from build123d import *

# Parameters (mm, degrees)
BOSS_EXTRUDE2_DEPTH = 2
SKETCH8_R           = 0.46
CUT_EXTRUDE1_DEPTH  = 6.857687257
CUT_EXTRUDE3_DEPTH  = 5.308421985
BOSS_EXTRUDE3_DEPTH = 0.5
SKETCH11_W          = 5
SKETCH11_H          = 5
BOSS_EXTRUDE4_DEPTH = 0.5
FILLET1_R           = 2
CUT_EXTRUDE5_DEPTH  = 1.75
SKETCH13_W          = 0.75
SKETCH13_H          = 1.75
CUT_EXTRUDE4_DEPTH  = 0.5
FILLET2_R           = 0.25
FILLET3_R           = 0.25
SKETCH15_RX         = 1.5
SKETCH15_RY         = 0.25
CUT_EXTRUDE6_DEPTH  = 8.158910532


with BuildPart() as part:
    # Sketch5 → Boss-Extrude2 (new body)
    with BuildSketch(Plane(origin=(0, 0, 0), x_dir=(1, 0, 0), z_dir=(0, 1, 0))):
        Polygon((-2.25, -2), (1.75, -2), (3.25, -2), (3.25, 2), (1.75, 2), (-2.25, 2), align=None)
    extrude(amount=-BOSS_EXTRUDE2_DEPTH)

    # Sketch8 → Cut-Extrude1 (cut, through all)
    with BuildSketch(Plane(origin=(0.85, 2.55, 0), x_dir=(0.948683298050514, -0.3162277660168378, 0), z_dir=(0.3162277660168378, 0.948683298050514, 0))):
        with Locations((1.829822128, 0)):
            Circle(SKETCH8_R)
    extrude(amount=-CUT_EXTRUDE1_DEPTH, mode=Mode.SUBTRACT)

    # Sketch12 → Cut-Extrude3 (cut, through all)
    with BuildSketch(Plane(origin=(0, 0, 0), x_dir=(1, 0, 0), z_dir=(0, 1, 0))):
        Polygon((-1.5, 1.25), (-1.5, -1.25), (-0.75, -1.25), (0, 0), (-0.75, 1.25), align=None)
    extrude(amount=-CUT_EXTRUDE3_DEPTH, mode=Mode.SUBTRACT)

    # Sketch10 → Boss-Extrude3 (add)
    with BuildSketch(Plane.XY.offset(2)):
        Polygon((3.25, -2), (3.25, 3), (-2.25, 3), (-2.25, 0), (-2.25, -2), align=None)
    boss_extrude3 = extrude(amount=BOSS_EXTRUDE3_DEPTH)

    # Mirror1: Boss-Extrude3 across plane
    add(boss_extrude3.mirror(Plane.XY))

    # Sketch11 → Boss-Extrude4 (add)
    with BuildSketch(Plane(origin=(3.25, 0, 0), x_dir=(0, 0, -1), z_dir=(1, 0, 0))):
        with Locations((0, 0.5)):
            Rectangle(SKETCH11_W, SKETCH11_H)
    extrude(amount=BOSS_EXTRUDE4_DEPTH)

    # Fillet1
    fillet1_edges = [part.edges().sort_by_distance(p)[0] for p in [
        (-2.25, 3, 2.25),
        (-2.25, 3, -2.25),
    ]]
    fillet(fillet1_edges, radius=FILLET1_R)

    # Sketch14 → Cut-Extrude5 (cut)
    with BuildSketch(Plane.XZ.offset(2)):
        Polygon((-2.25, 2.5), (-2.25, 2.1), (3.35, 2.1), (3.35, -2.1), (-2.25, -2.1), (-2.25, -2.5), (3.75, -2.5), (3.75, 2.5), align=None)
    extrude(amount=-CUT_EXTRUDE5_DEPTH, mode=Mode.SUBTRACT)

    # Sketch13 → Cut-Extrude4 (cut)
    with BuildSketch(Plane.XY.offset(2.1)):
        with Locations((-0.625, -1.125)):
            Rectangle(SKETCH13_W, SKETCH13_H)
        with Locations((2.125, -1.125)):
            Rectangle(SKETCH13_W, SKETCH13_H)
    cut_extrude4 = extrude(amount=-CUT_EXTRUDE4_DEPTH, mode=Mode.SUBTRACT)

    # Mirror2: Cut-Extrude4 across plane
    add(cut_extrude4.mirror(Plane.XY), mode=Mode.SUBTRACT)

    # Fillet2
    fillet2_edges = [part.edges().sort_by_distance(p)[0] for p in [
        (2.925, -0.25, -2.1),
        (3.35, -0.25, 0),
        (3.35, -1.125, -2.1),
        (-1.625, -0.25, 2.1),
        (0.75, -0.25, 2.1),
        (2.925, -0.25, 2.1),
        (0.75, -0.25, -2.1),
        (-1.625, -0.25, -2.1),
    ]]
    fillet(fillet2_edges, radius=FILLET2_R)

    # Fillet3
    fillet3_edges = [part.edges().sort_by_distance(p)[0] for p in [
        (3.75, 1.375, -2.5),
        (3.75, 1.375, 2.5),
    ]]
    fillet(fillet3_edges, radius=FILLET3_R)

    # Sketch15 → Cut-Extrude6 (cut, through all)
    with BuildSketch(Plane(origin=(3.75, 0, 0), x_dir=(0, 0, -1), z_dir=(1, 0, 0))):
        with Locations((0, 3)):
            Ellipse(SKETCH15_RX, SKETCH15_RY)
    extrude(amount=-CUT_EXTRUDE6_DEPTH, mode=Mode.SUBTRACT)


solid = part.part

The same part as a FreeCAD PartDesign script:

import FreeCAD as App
import Part
import Sketcher


def edges_at(feature, points):
    """Names of the edges that pass closest to the given points."""
    edges = feature.Shape.Edges
    near = lambda p: min(range(len(edges)), key=lambda i: edges[i].distToShape(Part.Vertex(*p))[0])
    return sorted({f"Edge{near(p) + 1}" for p in points})


def add_polygon(sketch, points):
    """Adds a closed chain of lines whose ends are joined by coincident constraints."""
    first, n = sketch.GeometryCount, len(points)
    for a, b in zip(points, points[1:] + points[:1]):
        sketch.addGeometry(Part.LineSegment(App.Vector(*a, 0), App.Vector(*b, 0)), False)
    for i in range(n):
        sketch.addConstraint(Sketcher.Constraint("Coincident", first + i, 2, first + (i + 1) % n, 1))

doc = App.newDocument("Part")
params = doc.addObject("Spreadsheet::Sheet", "Params")
for row, (alias, value) in enumerate([
    ("sketch1_height", "4 mm"),
    ("sketch1_width", "5.5 mm"),
    ("pad1_length", "2 mm"),
    ("sketch2_diameter", "0.92 mm"),
    ("sketch3_height", "2.5 mm"),
    ("sketch3_width", "0.75 mm"),
    ("sketch4_height", "5 mm"),
    ("sketch4_width", "5.5 mm"),
    ("pad2_length", "0.5 mm"),
    ("sketch5_width", "5 mm"),
    ("pad3_length", "0.5 mm"),
    ("fillet_radius", "2 mm"),
    ("sketch6_width", "6 mm"),
    ("sketch6_height", "5 mm"),
    ("sketch6_width2", "5.6 mm"),
    ("sketch6_height2", "0.4 mm"),
    ("pocket3_length", "1.75 mm"),
    ("sketch7_width", "0.75 mm"),
    ("sketch7_height", "1.75 mm"),
    ("pocket4_length", "0.5 mm"),
    ("fillet2_radius", "0.25 mm"),
    ("fillet3_radius", "0.25 mm"),
], start=1):
    params.set(f"A{row}", alias)
    params.set(f"B{row}", "=" + value)
    params.setAlias(f"B{row}", alias)

body = doc.addObject("PartDesign::Body", "Body")

# Sketch on XZ plane
sketch1 = body.newObject("Sketcher::SketchObject", "Sketch")
sketch1.AttachmentSupport = (doc.getObject("XZ_Plane"), [""])
sketch1.MapMode = "FlatFace"
add_polygon(sketch1, [(-2.2, 2), (3.2, 2), (3.2, -2), (-2.2, -2)])  # lines 0-3
sketch1.addConstraint([
    Sketcher.Constraint("Horizontal", 0),
    Sketcher.Constraint("Vertical", 1),
    Sketcher.Constraint("Horizontal", 2),
    Sketcher.Constraint("Vertical", 3),
    Sketcher.Constraint("DistanceY", 1, 2, 1, 1, 4.0),
    Sketcher.Constraint("DistanceX", 0, 1, 0, 2, 5.5),
    Sketcher.Constraint("DistanceY", -1, 1, 0, 2, 2.0),
    Sketcher.Constraint("DistanceX", -1, 1, 0, 2, 3.25),
])
sketch1.setExpression("Constraints[8]", "Params.sketch1_height")
sketch1.setExpression("Constraints[9]", "Params.sketch1_width")
pad1 = body.newObject("PartDesign::Pad", "Pad")
pad1.Profile = sketch1
pad1.setExpression("Length", "Params.pad1_length")

# Sketch on an angled plane
sketch2 = body.newObject("Sketcher::SketchObject", "Sketch001")
sketch2.Placement = App.Placement(App.Vector(0.85, 2.55, 0), App.Rotation(App.Vector(0.948683298, -0.316227766, 0), App.Vector(0, 0, -1), App.Vector(0.316227766, 0.948683298, 0), "ZXY"))
sketch2.addGeometry(Part.Circle(App.Vector(1.83, 0, 0), App.Vector(0, 0, 1), 0.46), False)
sketch2.addConstraint([
    Sketcher.Constraint("PointOnObject", 0, 3, -1),
    Sketcher.Constraint("Diameter", 0, 0.92),
    Sketcher.Constraint("DistanceX", -1, 1, 0, 3, 1.829822),
])
sketch2.setExpression("Constraints[1]", "Params.sketch2_diameter")
pocket1 = body.newObject("PartDesign::Pocket", "Pocket")
pocket1.Profile = sketch2
pocket1.Type = "ThroughAll"

# Sketch on XZ plane
sketch3 = body.newObject("Sketcher::SketchObject", "Sketch002")
sketch3.AttachmentSupport = (doc.getObject("XZ_Plane"), [""])
sketch3.MapMode = "FlatFace"
add_polygon(sketch3, [(-1.5, -1.2), (-1.5, 1.2), (-0.8, 1.2), (0, 0), (-0.8, -1.2)])  # lines 0-4
sketch3.addConstraint([
    Sketcher.Constraint("Vertical", 0),
    Sketcher.Constraint("Horizontal", 1),
    Sketcher.Constraint("Horizontal", 4),
    Sketcher.Constraint("Coincident", 2, 2, -1, 1),
    Sketcher.Constraint("Symmetric", 1, 2, 3, 2, -1),
    Sketcher.Constraint("DistanceY", 0, 1, 0, 2, 2.5),
    Sketcher.Constraint("DistanceX", 1, 1, 1, 2, 0.75),
    Sketcher.Constraint("DistanceX", 0, 2, -1, 1, 1.5),
])
sketch3.setExpression("Constraints[10]", "Params.sketch3_height")
sketch3.setExpression("Constraints[11]", "Params.sketch3_width")
pocket2 = body.newObject("PartDesign::Pocket", "Pocket001")
pocket2.Profile = sketch3
pocket2.Type = "ThroughAll"
pocket2.Reversed = True

# Sketch on XY plane
sketch4 = body.newObject("Sketcher::SketchObject", "Sketch003")
sketch4.AttachmentSupport = (doc.getObject("XY_Plane"), [""])
sketch4.MapMode = "FlatFace"
sketch4.AttachmentOffset = App.Placement(App.Vector(0, 0, 2), App.Rotation())
add_polygon(sketch4, [(3, -2), (3, 3), (-2, 3), (-2, -2)])  # lines 0-3
sketch4.addConstraint([
    Sketcher.Constraint("Vertical", 0),
    Sketcher.Constraint("Horizontal", 1),
    Sketcher.Constraint("Vertical", 2),
    Sketcher.Constraint("Horizontal", 3),
    Sketcher.Constraint("DistanceY", 0, 1, 0, 2, 5.0),
    Sketcher.Constraint("DistanceX", 1, 2, 1, 1, 5.5),
    Sketcher.Constraint("DistanceY", -1, 1, 0, 2, 3.0),
    Sketcher.Constraint("DistanceX", -1, 1, 0, 2, 3.25),
])
sketch4.setExpression("Constraints[8]", "Params.sketch4_height")
sketch4.setExpression("Constraints[9]", "Params.sketch4_width")
pad2 = body.newObject("PartDesign::Pad", "Pad001")
pad2.Profile = sketch4
pad2.setExpression("Length", "Params.pad2_length")
doc.recompute()

mirrored = body.newObject("PartDesign::Mirrored", "Mirrored")
mirrored.Originals = [pad2]
mirrored.MirrorPlane = (doc.getObject("XY_Plane"), [""])
body.Tip = mirrored

# Sketch on YZ plane
sketch5 = body.newObject("Sketcher::SketchObject", "Sketch004")
sketch5.AttachmentSupport = (doc.getObject("YZ_Plane"), [""])
sketch5.MapMode = "FlatFace"
sketch5.AttachmentOffset = App.Placement(App.Vector(0, 0, 3.25), App.Rotation())
add_polygon(sketch5, [(3, 2), (-2, 2), (-2, -2), (3, -2)])  # lines 0-3
sketch5.addConstraint([
    Sketcher.Constraint("Horizontal", 0),
    Sketcher.Constraint("Vertical", 1),
    Sketcher.Constraint("Horizontal", 2),
    Sketcher.Constraint("Vertical", 3),
    Sketcher.Constraint("Equal", 2, 1),
    Sketcher.Constraint("DistanceX", 0, 2, 0, 1, 5.0),
    Sketcher.Constraint("DistanceX", 0, 2, -1, 1, 2.0),
    Sketcher.Constraint("DistanceY", -1, 1, 0, 2, 2.5),
])
sketch5.setExpression("Constraints[9]", "Params.sketch5_width")
pad3 = body.newObject("PartDesign::Pad", "Pad002")
pad3.Profile = sketch5
pad3.setExpression("Length", "Params.pad3_length")
doc.recompute()

fillet = body.newObject("PartDesign::Fillet", "Fillet")
fillet.Base = (pad3, edges_at(pad3, [(-2.25, 3, 2.25), (-2.25, 3, -2.25)]))
fillet.setExpression("Radius", "Params.fillet_radius")

# Sketch on XZ plane
sketch6 = body.newObject("Sketcher::SketchObject", "Sketch005")
sketch6.AttachmentSupport = (doc.getObject("XZ_Plane"), [""])
sketch6.MapMode = "FlatFace"
sketch6.AttachmentOffset = App.Placement(App.Vector(0, 0, 2), App.Rotation())
add_polygon(sketch6, [(-2.25, 2.5), (-2.25, 2.1), (3.35, 2.1), (3.35, -2.1), (-2.25, -2.1), (-2.25, -2.5), (3.75, -2.5), (3.75, 2.5)])  # lines 0-7
sketch6.addConstraint([
    Sketcher.Constraint("Vertical", 0),
    Sketcher.Constraint("Horizontal", 1),
    Sketcher.Constraint("Vertical", 2),
    Sketcher.Constraint("Horizontal", 3),
    Sketcher.Constraint("Vertical", 4),
    Sketcher.Constraint("Horizontal", 5),
    Sketcher.Constraint("Vertical", 6),
    Sketcher.Constraint("Horizontal", 7),
    Sketcher.Constraint("Symmetric", 0, 2, 3, 2, -1),
    Sketcher.Constraint("Equal", 0, 4),
    Sketcher.Constraint("DistanceX", 5, 1, 5, 2, 6.0),
    Sketcher.Constraint("DistanceY", 6, 1, 6, 2, 5.0),
    Sketcher.Constraint("DistanceX", 1, 1, 1, 2, 5.6),
    Sketcher.Constraint("DistanceY", 0, 2, 0, 1, 0.4),
    Sketcher.Constraint("DistanceX", 0, 2, -1, 1, 2.25),
])
sketch6.setExpression("Constraints[18]", "Params.sketch6_width")
sketch6.setExpression("Constraints[19]", "Params.sketch6_height")
sketch6.setExpression("Constraints[20]", "Params.sketch6_width2")
sketch6.setExpression("Constraints[21]", "Params.sketch6_height2")
pocket3 = body.newObject("PartDesign::Pocket", "Pocket002")
pocket3.Profile = sketch6
pocket3.setExpression("Length", "Params.pocket3_length")

# Sketch on XY plane
sketch7 = body.newObject("Sketcher::SketchObject", "Sketch006")
sketch7.AttachmentSupport = (doc.getObject("XY_Plane"), [""])
sketch7.MapMode = "FlatFace"
sketch7.AttachmentOffset = App.Placement(App.Vector(0, 0, 2.1), App.Rotation())
add_polygon(sketch7, [(-1, -0.2), (-1, -2), (-0.2, -2), (-0.2, -0.2)])  # lines 0-3
add_polygon(sketch7, [(1.8, -0.2), (1.8, -2), (2.5, -2), (2.5, -0.2)])  # lines 4-7
sketch7.addConstraint([
    Sketcher.Constraint("Vertical", 0),
    Sketcher.Constraint("Horizontal", 1),
    Sketcher.Constraint("Vertical", 2),
    Sketcher.Constraint("Horizontal", 3),
    Sketcher.Constraint("Vertical", 4),
    Sketcher.Constraint("Horizontal", 5),
    Sketcher.Constraint("Vertical", 6),
    Sketcher.Constraint("Horizontal", 7),
    Sketcher.Constraint("Horizontal", 1, 2, 4, 2),
    Sketcher.Constraint("Horizontal", 3, 2, 6, 2),
    Sketcher.Constraint("Equal", 3, 5),
    Sketcher.Constraint("DistanceX", 0, 2, -1, 1, 1.0),
    Sketcher.Constraint("DistanceY", 0, 2, -1, 1, 2.0),
    Sketcher.Constraint("DistanceX", 1, 2, 4, 2, 2.0),
    Sketcher.Constraint("DistanceX", 1, 1, 1, 2, 0.75),
    Sketcher.Constraint("DistanceY", 0, 2, 0, 1, 1.75),
])
sketch7.setExpression("Constraints[22]", "Params.sketch7_width")
sketch7.setExpression("Constraints[23]", "Params.sketch7_height")
pocket4 = body.newObject("PartDesign::Pocket", "Pocket003")
pocket4.Profile = sketch7
pocket4.setExpression("Length", "Params.pocket4_length")
doc.recompute()

mirrored2 = body.newObject("PartDesign::Mirrored", "Mirrored001")
mirrored2.Originals = [pocket4]
mirrored2.MirrorPlane = (doc.getObject("XY_Plane"), [""])
body.Tip = mirrored2
doc.recompute()

fillet2 = body.newObject("PartDesign::Fillet", "Fillet001")
fillet2.Base = (mirrored2, edges_at(mirrored2, [
    (2.925, -0.25, -2.1),
    (3.35, -0.25, 0),
    (3.35, -1.125, -2.1),
    (-1.625, -0.25, 2.1),
    (0.75, -0.25, 2.1),
    (2.925, -0.25, 2.1),
    (0.75, -0.25, -2.1),
    (-1.625, -0.25, -2.1),
]))
fillet2.setExpression("Radius", "Params.fillet2_radius")
doc.recompute()

fillet3 = body.newObject("PartDesign::Fillet", "Fillet002")
fillet3.Base = (fillet2, edges_at(fillet2, [(3.75, 1.375, -2.5), (3.75, 1.375, 2.5)]))
fillet3.setExpression("Radius", "Params.fillet3_radius")

# Sketch on YZ plane
sketch8 = body.newObject("Sketcher::SketchObject", "Sketch007")
sketch8.AttachmentSupport = (doc.getObject("YZ_Plane"), [""])
sketch8.MapMode = "FlatFace"
sketch8.AttachmentOffset = App.Placement(App.Vector(0, 0, 3.75), App.Rotation())
sketch8.addGeometry(Part.Ellipse(App.Vector(3, -1.5, 0), App.Vector(3.25, 0, 0), App.Vector(3, 0, 0)), False)
sketch8.addConstraint(Sketcher.Constraint("Block", 0))
pocket5 = body.newObject("PartDesign::Pocket", "Pocket004")
pocket5.Profile = sketch8
pocket5.Type = "ThroughAll"

doc.recompute()
